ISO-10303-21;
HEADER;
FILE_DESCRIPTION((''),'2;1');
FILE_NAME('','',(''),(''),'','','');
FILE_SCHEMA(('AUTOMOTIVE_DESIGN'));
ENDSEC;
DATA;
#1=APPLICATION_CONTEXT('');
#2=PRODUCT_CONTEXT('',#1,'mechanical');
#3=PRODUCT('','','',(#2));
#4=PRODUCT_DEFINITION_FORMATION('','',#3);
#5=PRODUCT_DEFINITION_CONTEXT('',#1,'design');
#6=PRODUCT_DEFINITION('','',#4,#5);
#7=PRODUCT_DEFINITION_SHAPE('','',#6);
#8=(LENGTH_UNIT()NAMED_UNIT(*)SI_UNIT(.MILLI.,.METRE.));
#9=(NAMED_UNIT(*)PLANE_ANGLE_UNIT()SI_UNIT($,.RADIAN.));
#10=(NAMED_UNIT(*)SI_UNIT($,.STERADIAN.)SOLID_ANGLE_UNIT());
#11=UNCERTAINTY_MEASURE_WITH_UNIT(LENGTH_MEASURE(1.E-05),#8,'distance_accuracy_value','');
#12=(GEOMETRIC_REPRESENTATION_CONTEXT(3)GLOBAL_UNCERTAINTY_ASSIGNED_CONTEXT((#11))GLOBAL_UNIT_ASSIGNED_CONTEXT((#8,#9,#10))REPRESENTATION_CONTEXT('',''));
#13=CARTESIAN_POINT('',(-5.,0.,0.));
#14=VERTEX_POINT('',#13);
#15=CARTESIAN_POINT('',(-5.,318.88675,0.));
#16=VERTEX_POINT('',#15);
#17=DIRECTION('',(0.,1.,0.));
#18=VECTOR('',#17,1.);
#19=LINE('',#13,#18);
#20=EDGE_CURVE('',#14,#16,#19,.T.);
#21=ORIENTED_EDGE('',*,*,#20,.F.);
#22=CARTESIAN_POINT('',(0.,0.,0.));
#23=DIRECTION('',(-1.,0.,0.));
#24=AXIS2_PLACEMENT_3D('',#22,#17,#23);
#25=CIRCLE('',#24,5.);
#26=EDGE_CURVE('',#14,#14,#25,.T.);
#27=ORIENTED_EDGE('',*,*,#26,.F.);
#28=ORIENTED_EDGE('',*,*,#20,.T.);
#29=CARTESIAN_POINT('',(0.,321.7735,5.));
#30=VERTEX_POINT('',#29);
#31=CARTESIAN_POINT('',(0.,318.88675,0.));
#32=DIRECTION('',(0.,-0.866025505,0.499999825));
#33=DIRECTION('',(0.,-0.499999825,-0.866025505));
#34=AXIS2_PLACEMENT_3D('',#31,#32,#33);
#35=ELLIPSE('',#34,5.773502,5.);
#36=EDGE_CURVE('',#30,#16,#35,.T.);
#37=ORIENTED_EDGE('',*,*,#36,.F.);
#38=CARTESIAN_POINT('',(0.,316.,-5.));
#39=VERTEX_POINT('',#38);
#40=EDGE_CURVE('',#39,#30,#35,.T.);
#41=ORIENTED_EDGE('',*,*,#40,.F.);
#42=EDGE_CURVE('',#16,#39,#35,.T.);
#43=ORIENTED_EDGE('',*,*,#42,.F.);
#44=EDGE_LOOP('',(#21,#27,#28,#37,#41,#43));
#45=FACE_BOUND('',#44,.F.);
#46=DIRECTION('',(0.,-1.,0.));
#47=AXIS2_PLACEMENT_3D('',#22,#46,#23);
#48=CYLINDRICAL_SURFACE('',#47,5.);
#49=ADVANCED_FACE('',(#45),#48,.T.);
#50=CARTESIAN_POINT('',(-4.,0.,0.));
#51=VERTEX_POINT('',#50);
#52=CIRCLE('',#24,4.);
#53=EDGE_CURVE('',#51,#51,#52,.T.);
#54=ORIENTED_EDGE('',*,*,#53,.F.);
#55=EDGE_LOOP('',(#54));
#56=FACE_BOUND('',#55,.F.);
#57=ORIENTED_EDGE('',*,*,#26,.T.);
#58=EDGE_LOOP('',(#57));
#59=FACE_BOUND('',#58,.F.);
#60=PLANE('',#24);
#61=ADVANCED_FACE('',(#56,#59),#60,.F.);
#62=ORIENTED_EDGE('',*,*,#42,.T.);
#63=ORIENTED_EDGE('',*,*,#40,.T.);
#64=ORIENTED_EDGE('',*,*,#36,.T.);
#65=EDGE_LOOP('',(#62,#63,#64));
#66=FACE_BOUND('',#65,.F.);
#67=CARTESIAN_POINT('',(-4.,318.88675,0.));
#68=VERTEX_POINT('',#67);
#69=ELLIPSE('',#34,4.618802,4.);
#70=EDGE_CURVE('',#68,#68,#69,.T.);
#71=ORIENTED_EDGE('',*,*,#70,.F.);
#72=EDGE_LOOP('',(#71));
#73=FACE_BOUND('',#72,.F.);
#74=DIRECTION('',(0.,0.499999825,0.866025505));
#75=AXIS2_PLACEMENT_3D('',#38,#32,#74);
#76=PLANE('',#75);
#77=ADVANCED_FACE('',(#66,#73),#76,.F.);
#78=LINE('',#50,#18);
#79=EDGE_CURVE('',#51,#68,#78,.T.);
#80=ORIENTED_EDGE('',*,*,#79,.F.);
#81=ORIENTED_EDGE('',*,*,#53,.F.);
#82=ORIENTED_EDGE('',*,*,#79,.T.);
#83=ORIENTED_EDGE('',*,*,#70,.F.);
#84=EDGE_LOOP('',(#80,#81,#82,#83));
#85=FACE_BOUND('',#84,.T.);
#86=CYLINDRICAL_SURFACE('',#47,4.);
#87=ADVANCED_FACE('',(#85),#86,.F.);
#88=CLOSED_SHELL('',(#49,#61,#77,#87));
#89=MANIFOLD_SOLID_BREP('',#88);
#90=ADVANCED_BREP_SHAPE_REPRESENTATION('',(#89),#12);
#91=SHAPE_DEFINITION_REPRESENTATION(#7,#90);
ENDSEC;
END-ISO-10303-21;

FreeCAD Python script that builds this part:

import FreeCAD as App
import Part
import Sketcher
from FreeCAD import Vector
Q = App.Units.Quantity


def add_polygon(sketch, points):
    """Adds a closed chain of lines whose ends are joined by coincident constraints."""
    first, n = sketch.GeometryCount, len(points)
    for a, b in zip(points, points[1:] + points[:1]):
        sketch.addGeometry(Part.LineSegment(App.Vector(*a, 0), App.Vector(*b, 0)), False)
    for i in range(n):
        sketch.addConstraint(Sketcher.Constraint("Coincident", first + i, 2, first + (i + 1) % n, 1))

doc = App.newDocument("Part")
params = doc.addObject("Spreadsheet::Sheet", "Params")
for row, (alias, value) in enumerate([
    ("sketch1_diameter", "10 mm"),
    ("sketch1_diameter2", "8 mm"),
    ("pad1_length", "330 mm"),
    ("sketch2_width", "14 mm"),
    ("sketch2_height", "10 mm"),
], start=1):
    params.set(f"A{row}", alias)
    params.set(f"B{row}", "=" + value)
    params.setAlias(f"B{row}", alias)

body = doc.addObject("PartDesign::Body", "Body")

# Sketch on XZ plane
sketch1 = body.newObject("Sketcher::SketchObject", "Sketch")
sketch1.AttachmentSupport = (doc.getObject("XZ_Plane"), [""])
sketch1.MapMode = "FlatFace"
sketch1.addGeometry([
    Part.Circle(Vector(0, 0, 0), Vector(0, 0, 1), 5),
    Part.Circle(Vector(0, 0, 0), Vector(0, 0, 1), 4),
], False)
sketch1.addConstraint([
    Sketcher.Constraint("Coincident", 0, 3, -1, 1),
    Sketcher.Constraint("Coincident", 1, 3, -1, 1),
    Sketcher.Constraint("Diameter", 0, Q("10 mm")),
    Sketcher.Constraint("Diameter", 1, Q("8 mm")),
])
sketch1.setExpression("Constraints[2]", "Params.sketch1_diameter")
sketch1.setExpression("Constraints[3]", "Params.sketch1_diameter2")
pad1 = body.newObject("PartDesign::Pad", "Pad")
pad1.Profile = sketch1
pad1.setExpression("Length", "Params.pad1_length")
pad1.Reversed = True

# Sketch on YZ plane
sketch2 = body.newObject("Sketcher::SketchObject", "Sketch001")
sketch2.AttachmentSupport = (doc.getObject("YZ_Plane"), [""])
sketch2.MapMode = "FlatFace"
add_polygon(sketch2, [(316, -5), (330, -5), (330, 5), (322, 5)])  # lines 0-3
sketch2.addConstraint([
    Sketcher.Constraint("Horizontal", 0),
    Sketcher.Constraint("Vertical", 1),
    Sketcher.Constraint("Horizontal", 2),
    Sketcher.Constraint("DistanceX", -1, 1, 3, 2, Q("316 mm")),
    Sketcher.Constraint("DistanceX", 0, 1, 0, 2, Q("14 mm")),
    Sketcher.Constraint("DistanceY", 1, 1, 1, 2, Q("10 mm")),
    Sketcher.Constraint("Angle", 3, Q("-120 deg")),
    Sketcher.Constraint("DistanceY", 0, 2, -1, 1, Q("5 mm")),
])
sketch2.setExpression("Constraints[8]", "Params.sketch2_width")
sketch2.setExpression("Constraints[9]", "Params.sketch2_height")
pocket1 = body.newObject("PartDesign::Pocket", "Pocket")
pocket1.Profile = sketch2
pocket1.Type = "ThroughAll"
pocket1.Midplane = True

doc.recompute()
